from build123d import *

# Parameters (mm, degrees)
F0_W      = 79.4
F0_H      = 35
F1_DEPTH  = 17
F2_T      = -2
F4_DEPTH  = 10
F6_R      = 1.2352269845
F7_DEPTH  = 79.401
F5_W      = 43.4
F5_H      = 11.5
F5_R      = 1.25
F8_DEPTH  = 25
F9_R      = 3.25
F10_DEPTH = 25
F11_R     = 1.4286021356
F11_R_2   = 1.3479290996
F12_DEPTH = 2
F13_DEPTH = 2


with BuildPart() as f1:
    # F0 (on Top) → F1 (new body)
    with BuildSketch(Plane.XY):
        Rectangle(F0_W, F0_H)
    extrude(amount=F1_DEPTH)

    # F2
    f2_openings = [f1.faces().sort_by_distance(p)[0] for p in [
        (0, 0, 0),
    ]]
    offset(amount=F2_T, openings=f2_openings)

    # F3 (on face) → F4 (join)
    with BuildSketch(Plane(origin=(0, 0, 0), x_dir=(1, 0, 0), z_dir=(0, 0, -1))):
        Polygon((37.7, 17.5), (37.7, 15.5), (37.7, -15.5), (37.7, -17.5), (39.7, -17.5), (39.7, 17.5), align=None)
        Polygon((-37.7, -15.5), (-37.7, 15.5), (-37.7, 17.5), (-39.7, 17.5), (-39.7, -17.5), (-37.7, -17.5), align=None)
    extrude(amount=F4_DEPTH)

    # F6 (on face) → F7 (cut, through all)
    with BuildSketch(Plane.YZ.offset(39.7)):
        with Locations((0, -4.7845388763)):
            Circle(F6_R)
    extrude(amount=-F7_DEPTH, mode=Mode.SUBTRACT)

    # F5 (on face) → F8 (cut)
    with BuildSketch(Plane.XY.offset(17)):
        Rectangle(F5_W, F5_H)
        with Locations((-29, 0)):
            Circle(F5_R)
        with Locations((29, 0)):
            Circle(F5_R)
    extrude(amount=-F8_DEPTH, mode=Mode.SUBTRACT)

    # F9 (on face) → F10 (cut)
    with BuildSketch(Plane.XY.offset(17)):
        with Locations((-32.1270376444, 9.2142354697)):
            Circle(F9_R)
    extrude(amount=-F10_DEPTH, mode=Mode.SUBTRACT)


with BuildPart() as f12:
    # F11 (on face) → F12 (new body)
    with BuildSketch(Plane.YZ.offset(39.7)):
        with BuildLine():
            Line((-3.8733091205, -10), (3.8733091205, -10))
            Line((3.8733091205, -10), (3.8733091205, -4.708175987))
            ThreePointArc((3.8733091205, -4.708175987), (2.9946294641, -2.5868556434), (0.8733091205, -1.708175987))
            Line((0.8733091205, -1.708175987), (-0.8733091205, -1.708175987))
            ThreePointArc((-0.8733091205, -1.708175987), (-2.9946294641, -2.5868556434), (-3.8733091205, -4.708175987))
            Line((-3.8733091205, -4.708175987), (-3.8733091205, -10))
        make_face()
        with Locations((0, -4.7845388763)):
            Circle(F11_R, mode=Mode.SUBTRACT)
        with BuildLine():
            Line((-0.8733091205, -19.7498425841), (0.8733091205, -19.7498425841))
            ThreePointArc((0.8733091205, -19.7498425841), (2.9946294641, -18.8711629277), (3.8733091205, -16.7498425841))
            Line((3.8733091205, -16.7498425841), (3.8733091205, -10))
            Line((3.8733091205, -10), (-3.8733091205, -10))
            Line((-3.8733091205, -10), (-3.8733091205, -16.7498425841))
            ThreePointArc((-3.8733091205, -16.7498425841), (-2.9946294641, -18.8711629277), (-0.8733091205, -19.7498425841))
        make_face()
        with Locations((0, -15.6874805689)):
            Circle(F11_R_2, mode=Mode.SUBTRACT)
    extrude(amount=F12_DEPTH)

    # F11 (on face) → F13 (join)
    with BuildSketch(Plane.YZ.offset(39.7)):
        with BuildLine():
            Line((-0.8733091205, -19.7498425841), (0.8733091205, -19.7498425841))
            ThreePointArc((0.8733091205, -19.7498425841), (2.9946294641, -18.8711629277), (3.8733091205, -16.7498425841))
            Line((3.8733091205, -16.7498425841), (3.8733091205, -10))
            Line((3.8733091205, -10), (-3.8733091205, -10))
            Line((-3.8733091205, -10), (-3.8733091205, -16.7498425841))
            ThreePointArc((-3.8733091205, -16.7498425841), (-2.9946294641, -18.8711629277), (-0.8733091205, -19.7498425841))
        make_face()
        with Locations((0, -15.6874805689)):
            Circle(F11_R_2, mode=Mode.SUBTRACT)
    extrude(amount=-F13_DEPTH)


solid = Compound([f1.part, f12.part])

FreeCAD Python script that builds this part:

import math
import FreeCAD as App
import Part
import Sketcher
from FreeCAD import Vector
Q = App.Units.Quantity


def faces_at(feature, points):
    """Names of the faces that lie closest to the given points."""
    faces = feature.Shape.Faces
    near = lambda p: min(range(len(faces)), key=lambda i: faces[i].distToShape(Part.Vertex(*p))[0])
    return sorted({f"Face{near(p) + 1}" for p in points})


def add_polygon(sketch, points):
    """Adds a closed chain of lines whose ends are joined by coincident constraints."""
    first, n = sketch.GeometryCount, len(points)
    for a, b in zip(points, points[1:] + points[:1]):
        sketch.addGeometry(Part.LineSegment(App.Vector(*a, 0), App.Vector(*b, 0)), False)
    for i in range(n):
        sketch.addConstraint(Sketcher.Constraint("Coincident", first + i, 2, first + (i + 1) % n, 1))

doc = App.newDocument("Part")
body = doc.addObject("PartDesign::Body", "Body")

# Sketch on XY plane
sketch1 = doc.addObject("Sketcher::SketchObject", "Sketch")
body.addObject(sketch1)
sketch1.AttachmentSupport = (doc.XY_Plane, [""])
sketch1.MapMode = "FlatFace"
add_polygon(sketch1, [(-39.7, 17.5), (-39.7, -17.5), (39.7, -17.5), (39.7, 17.5)])  # lines 0-3
sketch1.addConstraint(Sketcher.Constraint("Vertical", 0))
sketch1.addConstraint(Sketcher.Constraint("Horizontal", 1))
sketch1.addConstraint(Sketcher.Constraint("Vertical", 2))
sketch1.addConstraint(Sketcher.Constraint("Horizontal", 3))
sketch1.addConstraint(Sketcher.Constraint("Symmetric", 0, 2, 2, 2, -1, 1))
sketch1.addConstraint(Sketcher.Constraint("DistanceY", 0, 2, 0, 1, Q("35 mm")))
sketch1.addConstraint(Sketcher.Constraint("DistanceX", 1, 1, 1, 2, Q("79.4 mm")))
pad1 = doc.addObject("PartDesign::Pad", "Pad")
body.addObject(pad1)
pad1.Profile = sketch1
pad1.Length = 17
doc.recompute()

thickness = doc.addObject("PartDesign::Thickness", "Thickness")
body.addObject(thickness)
thickness.Base = (pad1, faces_at(pad1, [(0, 0, 0)]))
thickness.Value = 2
thickness.Reversed = True
thickness.Join = "Arc"

# Sketch on XY plane
sketch2 = doc.addObject("Sketcher::SketchObject", "Sketch001")
body.addObject(sketch2)
sketch2.AttachmentSupport = (doc.XY_Plane, [""])
sketch2.MapMode = "FlatFace"
add_polygon(sketch2, [(37.7, -17.5), (37.7, 17.5), (39.7, 17.5), (39.7, -17.5)])  # lines 0-3
add_polygon(sketch2, [(-37.7, -17.5), (-39.7, -17.5), (-39.7, 17.5), (-37.7, 17.5)])  # lines 4-7
sketch2.addConstraint(Sketcher.Constraint("Vertical", 0))
sketch2.addConstraint(Sketcher.Constraint("Horizontal", 1))
sketch2.addConstraint(Sketcher.Constraint("Vertical", 2))
sketch2.addConstraint(Sketcher.Constraint("Horizontal", 3))
sketch2.addConstraint(Sketcher.Constraint("Horizontal", 4))
sketch2.addConstraint(Sketcher.Constraint("Vertical", 5))
sketch2.addConstraint(Sketcher.Constraint("Horizontal", 6))
sketch2.addConstraint(Sketcher.Constraint("Vertical", 7))
sketch2.addConstraint(Sketcher.Constraint("Symmetric", 1, 2, 4, 2, -1, 1))
sketch2.addConstraint(Sketcher.Constraint("Symmetric", 3, 2, 6, 2, -1, 1))
sketch2.addConstraint(Sketcher.Constraint("Horizontal", 3, 2, 4, 2))
sketch2.addConstraint(Sketcher.Constraint("DistanceX", 1, 1, 1, 2, Q("2 mm")))
sketch2.addConstraint(Sketcher.Constraint("DistanceY", 0, 1, 0, 2, Q("35 mm")))
sketch2.addConstraint(Sketcher.Constraint("DistanceX", -1, 1, 0, 2, Q("37.7 mm")))
pad2 = doc.addObject("PartDesign::Pad", "Pad001")
body.addObject(pad2)
pad2.Profile = sketch2
pad2.Length = 10
pad2.Reversed = True

# Sketch on YZ plane
sketch3 = doc.addObject("Sketcher::SketchObject", "Sketch002")
body.addObject(sketch3)
sketch3.AttachmentSupport = (doc.YZ_Plane, [""])
sketch3.MapMode = "FlatFace"
sketch3.AttachmentOffset = App.Placement(Vector(0, 0, 39.7), App.Rotation())
sketch3.addGeometry(Part.Circle(Vector(0, -4.784539, 0), Vector(0, 0, 1), 1.235227), False)
sketch3.addConstraint(Sketcher.Constraint("PointOnObject", 0, 3, -2))
sketch3.addConstraint(Sketcher.Constraint("Diameter", 0, Q("2.470454 mm")))
sketch3.addConstraint(Sketcher.Constraint("DistanceY", 0, 3, -1, 1, Q("4.784539 mm")))
pocket1 = doc.addObject("PartDesign::Pocket", "Pocket")
body.addObject(pocket1)
pocket1.Profile = sketch3
pocket1.Type = "ThroughAll"

# Sketch on XY plane
sketch4 = doc.addObject("Sketcher::SketchObject", "Sketch003")
body.addObject(sketch4)
sketch4.AttachmentSupport = (doc.XY_Plane, [""])
sketch4.MapMode = "FlatFace"
sketch4.AttachmentOffset = App.Placement(Vector(0, 0, 17), App.Rotation())
add_polygon(sketch4, [(-21.7, 5.75), (-21.7, -5.75), (21.7, -5.75), (21.7, 5.75)])  # lines 0-3
sketch4.addGeometry(Part.Circle(Vector(-29, 0, 0), Vector(0, 0, 1), 1.25), False)  # 4
sketch4.addGeometry(Part.Circle(Vector(29, 0, 0), Vector(0, 0, 1), 1.25), False)  # 5
sketch4.addConstraint(Sketcher.Constraint("Vertical", 0))
sketch4.addConstraint(Sketcher.Constraint("Horizontal", 1))
sketch4.addConstraint(Sketcher.Constraint("Vertical", 2))
sketch4.addConstraint(Sketcher.Constraint("Horizontal", 3))
sketch4.addConstraint(Sketcher.Constraint("Equal", 4, 5))
sketch4.addConstraint(Sketcher.Constraint("Symmetric", 4, 3, 5, 3, -1, 1))
sketch4.addConstraint(Sketcher.Constraint("Symmetric", 0, 2, 2, 2, -1, 1))
sketch4.addConstraint(Sketcher.Constraint("PointOnObject", 4, 3, -1))
sketch4.addConstraint(Sketcher.Constraint("Diameter", 4, Q("2.5 mm")))
sketch4.addConstraint(Sketcher.Constraint("DistanceX", 1, 1, 1, 2, Q("43.4 mm")))
sketch4.addConstraint(Sketcher.Constraint("DistanceY", 0, 2, 0, 1, Q("11.5 mm")))
sketch4.addConstraint(Sketcher.Constraint("DistanceX", 4, 3, -1, 1, Q("29 mm")))
pocket2 = doc.addObject("PartDesign::Pocket", "Pocket001")
body.addObject(pocket2)
pocket2.Profile = sketch4
pocket2.Length = 25

# Sketch on XY plane
sketch5 = doc.addObject("Sketcher::SketchObject", "Sketch004")
body.addObject(sketch5)
sketch5.AttachmentSupport = (doc.XY_Plane, [""])
sketch5.MapMode = "FlatFace"
sketch5.AttachmentOffset = App.Placement(Vector(0, 0, 17), App.Rotation())
sketch5.addGeometry(Part.Circle(Vector(-32.127038, 9.214235, 0), Vector(0, 0, 1), 3.25), False)
sketch5.addConstraint(Sketcher.Constraint("Diameter", 0, Q("6.5 mm")))
sketch5.addConstraint(Sketcher.Constraint("DistanceX", 0, 3, -1, 1, Q("32.127038 mm")))
sketch5.addConstraint(Sketcher.Constraint("DistanceY", -1, 1, 0, 3, Q("9.214235 mm")))
pocket3 = doc.addObject("PartDesign::Pocket", "Pocket002")
body.addObject(pocket3)
pocket3.Profile = sketch5
pocket3.Length = 25
body2 = doc.addObject("PartDesign::Body", "Body001")

# Sketch on YZ plane
sketch6 = doc.addObject("Sketcher::SketchObject", "Sketch005")
body2.addObject(sketch6)
sketch6.AttachmentSupport = (doc.getObject("YZ_Plane001"), [""])
sketch6.MapMode = "FlatFace"
sketch6.AttachmentOffset = App.Placement(Vector(0, 0, 39.7), App.Rotation())
sketch6.addGeometry(Part.LineSegment(Vector(-3.873309, -4.708176, 0), Vector(-3.873309, -16.749843, 0)), False)
sketch6.addGeometry(Part.ArcOfCircle(Part.Circle(Vector(-0.873309, -16.749843, 0), Vector(0, 0, 1), 3), math.radians(180), math.radians(270)), False)
sketch6.addGeometry(Part.LineSegment(Vector(-0.873309, -19.749843, 0), Vector(0.873309, -19.749843, 0)), False)
sketch6.addGeometry(Part.ArcOfCircle(Part.Circle(Vector(0.873309, -16.749843, 0), Vector(0, 0, 1), 3), math.radians(-90), math.radians(0)), False)
sketch6.addGeometry(Part.LineSegment(Vector(3.873309, -16.749843, 0), Vector(3.873309, -4.708176, 0)), False)
sketch6.addGeometry(Part.ArcOfCircle(Part.Circle(Vector(0.873309, -4.708176, 0), Vector(0, 0, 1), 3), math.radians(0), math.radians(90)), False)
sketch6.addGeometry(Part.LineSegment(Vector(0.873309, -1.708176, 0), Vector(-0.873309, -1.708176, 0)), False)
sketch6.addGeometry(Part.ArcOfCircle(Part.Circle(Vector(-0.873309, -4.708176, 0), Vector(0, 0, 1), 3), math.radians(90), math.radians(180)), False)
sketch6.addGeometry(Part.Circle(Vector(0, -15.687481, 0), Vector(0, 0, 1), 1.347929), False)
sketch6.addGeometry(Part.Circle(Vector(0, -4.784539, 0), Vector(0, 0, 1), 1.428602), False)
sketch6.addConstraint(Sketcher.Constraint("Tangent", 0, 2, 1, 1))
sketch6.addConstraint(Sketcher.Constraint("Tangent", 1, 2, 2, 1))
sketch6.addConstraint(Sketcher.Constraint("Tangent", 2, 2, 3, 1))
sketch6.addConstraint(Sketcher.Constraint("Tangent", 3, 2, 4, 1))
sketch6.addConstraint(Sketcher.Constraint("Tangent", 4, 2, 5, 1))
sketch6.addConstraint(Sketcher.Constraint("Tangent", 5, 2, 6, 1))
sketch6.addConstraint(Sketcher.Constraint("Tangent", 6, 2, 7, 1))
sketch6.addConstraint(Sketcher.Constraint("Tangent", 7, 2, 0, 1))
sketch6.addConstraint(Sketcher.Constraint("Vertical", 0))
sketch6.addConstraint(Sketcher.Constraint("Horizontal", 2))
sketch6.addConstraint(Sketcher.Constraint("Vertical", 4))
sketch6.addConstraint(Sketcher.Constraint("Horizontal", 6))
sketch6.addConstraint(Sketcher.Constraint("Equal", 1, 3))
sketch6.addConstraint(Sketcher.Constraint("Equal", 3, 5))
sketch6.addConstraint(Sketcher.Constraint("Equal", 5, 7))
sketch6.addConstraint(Sketcher.Constraint("PointOnObject", 8, 3, -2))
sketch6.addConstraint(Sketcher.Constraint("PointOnObject", 9, 3, -2))
sketch6.addConstraint(Sketcher.Constraint("Radius", 1, Q("3 mm")))
sketch6.addConstraint(Sketcher.Constraint("Diameter", 8, Q("2.695858 mm")))
sketch6.addConstraint(Sketcher.Constraint("Diameter", 9, Q("2.857204 mm")))
sketch6.addConstraint(Sketcher.Constraint("DistanceX", 2, 1, 2, 2, Q("1.746618 mm")))
sketch6.addConstraint(Sketcher.Constraint("DistanceY", 0, 2, 0, 1, Q("12.041667 mm")))
sketch6.addConstraint(Sketcher.Constraint("DistanceX", 1, 3, -1, 1, Q("0.873309 mm")))
sketch6.addConstraint(Sketcher.Constraint("DistanceY", 8, 3, -1, 1, Q("15.687481 mm")))
sketch6.addConstraint(Sketcher.Constraint("DistanceY", 9, 3, -1, 1, Q("4.784539 mm")))
sketch6.addConstraint(Sketcher.Constraint("DistanceY", 1, 3, -1, 1, Q("16.749843 mm")))
pad3 = doc.addObject("PartDesign::Pad", "Pad002")
body2.addObject(pad3)
pad3.Profile = sketch6
pad3.Length = 2

# Sketch on YZ plane
sketch7 = doc.addObject("Sketcher::SketchObject", "Sketch006")
body2.addObject(sketch7)
sketch7.AttachmentSupport = (doc.getObject("YZ_Plane001"), [""])
sketch7.MapMode = "FlatFace"
sketch7.AttachmentOffset = App.Placement(Vector(0, 0, 39.7), App.Rotation())
sketch7.addGeometry(Part.LineSegment(Vector(-0.873309, -19.749843, 0), Vector(0.873309, -19.749843, 0)), False)
sketch7.addGeometry(Part.ArcOfCircle(Part.Circle(Vector(0.873309, -16.749843, 0), Vector(0, 0, 1), 3), math.radians(-90), math.radians(0)), False)
sketch7.addGeometry(Part.LineSegment(Vector(3.873309, -16.749843, 0), Vector(3.873309, -10, 0)), False)
sketch7.addGeometry(Part.LineSegment(Vector(3.873309, -10, 0), Vector(-3.873309, -10, 0)), False)
sketch7.addGeometry(Part.LineSegment(Vector(-3.873309, -10, 0), Vector(-3.873309, -16.749843, 0)), False)
sketch7.addGeometry(Part.ArcOfCircle(Part.Circle(Vector(-0.873309, -16.749843, 0), Vector(0, 0, 1), 3), math.radians(180), math.radians(270)), False)
sketch7.addGeometry(Part.Circle(Vector(0, -15.687481, 0), Vector(0, 0, 1), 1.347929), False)
sketch7.addConstraint(Sketcher.Constraint("Tangent", 0, 2, 1, 1))
sketch7.addConstraint(Sketcher.Constraint("Tangent", 1, 2, 2, 1))
sketch7.addConstraint(Sketcher.Constraint("Coincident", 2, 2, 3, 1))
sketch7.addConstraint(Sketcher.Constraint("Coincident", 3, 2, 4, 1))
sketch7.addConstraint(Sketcher.Constraint("Tangent", 4, 2, 5, 1))
sketch7.addConstraint(Sketcher.Constraint("Tangent", 5, 2, 0, 1))
sketch7.addConstraint(Sketcher.Constraint("Horizontal", 0))
sketch7.addConstraint(Sketcher.Constraint("Vertical", 2))
sketch7.addConstraint(Sketcher.Constraint("Horizontal", 3))
sketch7.addConstraint(Sketcher.Constraint("Vertical", 4))
sketch7.addConstraint(Sketcher.Constraint("Equal", 1, 5))
sketch7.addConstraint(Sketcher.Constraint("PointOnObject", 6, 3, -2))
sketch7.addConstraint(Sketcher.Constraint("Radius", 1, Q("3 mm")))
sketch7.addConstraint(Sketcher.Constraint("DistanceY", 2, 2, -1, 1, Q("10 mm")))
sketch7.addConstraint(Sketcher.Constraint("Diameter", 6, Q("2.695858 mm")))
sketch7.addConstraint(Sketcher.Constraint("DistanceX", 0, 1, 0, 2, Q("1.746618 mm")))
sketch7.addConstraint(Sketcher.Constraint("DistanceY", 2, 1, 2, 2, Q("6.749843 mm")))
sketch7.addConstraint(Sketcher.Constraint("DistanceX", -1, 1, 1, 3, Q("0.873309 mm")))
sketch7.addConstraint(Sketcher.Constraint("DistanceY", 6, 3, -1, 1, Q("15.687481 mm")))
pad4 = doc.addObject("PartDesign::Pad", "Pad003")
body2.addObject(pad4)
pad4.Profile = sketch7
pad4.Length = 2
pad4.Reversed = True

doc.recompute()
